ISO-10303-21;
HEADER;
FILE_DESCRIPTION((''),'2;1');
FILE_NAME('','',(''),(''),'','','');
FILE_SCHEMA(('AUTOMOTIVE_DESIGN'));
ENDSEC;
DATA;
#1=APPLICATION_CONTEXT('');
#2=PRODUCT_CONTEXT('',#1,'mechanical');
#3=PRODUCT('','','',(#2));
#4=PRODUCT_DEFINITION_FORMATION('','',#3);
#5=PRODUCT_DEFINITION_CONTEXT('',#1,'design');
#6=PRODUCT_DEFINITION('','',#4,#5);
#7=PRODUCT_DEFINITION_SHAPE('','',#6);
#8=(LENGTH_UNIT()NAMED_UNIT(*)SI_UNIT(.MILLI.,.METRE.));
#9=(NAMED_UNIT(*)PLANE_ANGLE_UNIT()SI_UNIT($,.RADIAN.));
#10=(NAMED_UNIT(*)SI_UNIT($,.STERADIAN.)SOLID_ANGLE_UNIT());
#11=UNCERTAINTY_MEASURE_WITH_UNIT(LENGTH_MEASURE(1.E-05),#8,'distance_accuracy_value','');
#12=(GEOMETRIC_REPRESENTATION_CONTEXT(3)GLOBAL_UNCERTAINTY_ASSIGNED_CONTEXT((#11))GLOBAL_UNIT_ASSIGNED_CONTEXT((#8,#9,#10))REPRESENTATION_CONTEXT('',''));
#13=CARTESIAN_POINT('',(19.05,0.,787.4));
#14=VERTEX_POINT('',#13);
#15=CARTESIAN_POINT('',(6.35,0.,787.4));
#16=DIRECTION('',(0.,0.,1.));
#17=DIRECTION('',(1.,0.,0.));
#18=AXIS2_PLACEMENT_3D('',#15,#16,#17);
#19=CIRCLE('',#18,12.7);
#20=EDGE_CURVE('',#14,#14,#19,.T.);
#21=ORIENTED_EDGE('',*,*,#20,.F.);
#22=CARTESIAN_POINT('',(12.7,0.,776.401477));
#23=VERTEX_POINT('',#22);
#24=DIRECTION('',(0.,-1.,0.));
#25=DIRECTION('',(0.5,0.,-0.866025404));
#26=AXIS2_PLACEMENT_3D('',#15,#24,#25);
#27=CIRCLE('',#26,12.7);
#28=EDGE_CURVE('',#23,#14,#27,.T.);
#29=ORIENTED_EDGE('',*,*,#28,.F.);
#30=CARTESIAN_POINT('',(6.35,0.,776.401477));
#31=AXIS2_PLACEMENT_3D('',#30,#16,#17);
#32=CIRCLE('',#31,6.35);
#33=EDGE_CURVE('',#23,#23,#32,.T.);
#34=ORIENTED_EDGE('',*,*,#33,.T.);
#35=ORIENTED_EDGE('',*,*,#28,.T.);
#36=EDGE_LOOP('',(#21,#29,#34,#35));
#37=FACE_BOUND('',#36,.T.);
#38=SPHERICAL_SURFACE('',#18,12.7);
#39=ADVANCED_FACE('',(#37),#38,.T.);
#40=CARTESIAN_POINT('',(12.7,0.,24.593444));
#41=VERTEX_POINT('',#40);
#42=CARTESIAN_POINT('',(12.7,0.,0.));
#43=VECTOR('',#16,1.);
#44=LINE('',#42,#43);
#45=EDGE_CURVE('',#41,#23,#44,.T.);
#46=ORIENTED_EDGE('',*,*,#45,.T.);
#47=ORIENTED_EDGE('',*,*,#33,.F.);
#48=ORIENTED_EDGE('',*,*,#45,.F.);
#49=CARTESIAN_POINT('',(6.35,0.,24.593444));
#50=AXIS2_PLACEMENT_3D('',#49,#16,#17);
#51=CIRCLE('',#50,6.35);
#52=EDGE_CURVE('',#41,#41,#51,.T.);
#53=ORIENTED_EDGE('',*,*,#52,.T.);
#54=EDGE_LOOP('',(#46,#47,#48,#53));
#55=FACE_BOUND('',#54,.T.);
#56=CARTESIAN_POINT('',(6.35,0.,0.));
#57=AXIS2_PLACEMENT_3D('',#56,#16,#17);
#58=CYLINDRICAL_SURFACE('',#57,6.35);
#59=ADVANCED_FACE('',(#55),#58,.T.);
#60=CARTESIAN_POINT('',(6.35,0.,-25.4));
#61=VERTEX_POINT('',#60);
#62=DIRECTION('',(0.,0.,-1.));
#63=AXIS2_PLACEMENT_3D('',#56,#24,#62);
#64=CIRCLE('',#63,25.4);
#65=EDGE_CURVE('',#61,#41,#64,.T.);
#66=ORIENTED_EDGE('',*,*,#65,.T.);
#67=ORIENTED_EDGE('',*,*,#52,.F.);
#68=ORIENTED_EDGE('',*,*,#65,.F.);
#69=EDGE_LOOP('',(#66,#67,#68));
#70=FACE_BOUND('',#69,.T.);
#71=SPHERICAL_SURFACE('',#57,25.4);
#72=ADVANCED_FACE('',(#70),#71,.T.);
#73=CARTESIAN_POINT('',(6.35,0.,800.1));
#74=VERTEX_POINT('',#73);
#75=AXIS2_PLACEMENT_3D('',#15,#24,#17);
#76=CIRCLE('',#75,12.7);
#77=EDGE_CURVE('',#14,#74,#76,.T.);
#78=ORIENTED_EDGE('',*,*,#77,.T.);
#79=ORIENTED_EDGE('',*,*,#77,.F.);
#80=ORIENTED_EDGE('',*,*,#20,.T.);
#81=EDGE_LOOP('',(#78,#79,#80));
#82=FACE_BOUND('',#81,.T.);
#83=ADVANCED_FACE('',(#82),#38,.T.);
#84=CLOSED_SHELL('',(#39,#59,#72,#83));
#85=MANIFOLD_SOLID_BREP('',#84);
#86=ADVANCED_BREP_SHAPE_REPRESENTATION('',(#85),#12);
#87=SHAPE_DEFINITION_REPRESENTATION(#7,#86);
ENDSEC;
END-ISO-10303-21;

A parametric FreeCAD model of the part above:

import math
import FreeCAD as App
import Part
import Sketcher
Q = App.Units.Quantity

doc = App.newDocument("Part")
params = doc.addObject("Spreadsheet::Sheet", "Params")
for row, (alias, value) in enumerate([
    ("sketch1_radius", "1 in"),
    ("sketch1_radius2", "0.5 in"),
    ("sketch1_height", "32.5 in"),
    ("revolution_angle", "360 deg"),
], start=1):
    params.set(f"A{row}", alias)
    params.set(f"B{row}", "=" + value)
    params.setAlias(f"B{row}", alias)

body = doc.addObject("PartDesign::Body", "Body")

sketch1 = body.newObject("Sketcher::SketchObject", "Sketch")
sketch1.AttachmentSupport = (doc.getObject("XZ_Plane"), [""])
sketch1.MapMode = "FlatFace"
sketch1.addGeometry(Part.ArcOfCircle(Part.Circle(App.Vector(6, 787, 0), App.Vector(0, 0, 1), 13), math.radians(0), math.radians(90)), False)
sketch1.addGeometry(Part.LineSegment(App.Vector(6, 800, 0), App.Vector(6, -25, 0)), False)
sketch1.addGeometry(Part.ArcOfCircle(Part.Circle(App.Vector(6, 0, 0), App.Vector(0, 0, 1), 25), math.radians(-90), math.radians(76)), False)
sketch1.addGeometry(Part.LineSegment(App.Vector(13, 25, 0), App.Vector(13, 776, 0)), False)
sketch1.addGeometry(Part.ArcOfCircle(Part.Circle(App.Vector(6, 787, 0), App.Vector(0, 0, 1), 13), math.radians(-60), math.radians(0)), False)
sketch1.addGeometry(Part.LineSegment(App.Vector(6, -25, 0), App.Vector(6, 800, 0)), True)
sketch1.addConstraint(Sketcher.Constraint("Coincident", 0, 2, 1, 1))
sketch1.addConstraint(Sketcher.Constraint("Coincident", 1, 2, 2, 1))
sketch1.addConstraint(Sketcher.Constraint("Coincident", 2, 2, 3, 1))
sketch1.addConstraint(Sketcher.Constraint("Coincident", 3, 2, 4, 1))
sketch1.addConstraint(Sketcher.Constraint("Tangent", 4, 2, 0, 1))
sketch1.addConstraint(Sketcher.Constraint("Vertical", 1))
sketch1.addConstraint(Sketcher.Constraint("Vertical", 3))
sketch1.addConstraint(Sketcher.Constraint("Vertical", 5))
sketch1.addConstraint(Sketcher.Constraint("Coincident", 5, 1, 1, 2))
sketch1.addConstraint(Sketcher.Constraint("Equal", 0, 4))
sketch1.addConstraint(Sketcher.Constraint("PointOnObject", 2, 3, -1))
sketch1.addConstraint(Sketcher.Constraint("Horizontal", 0, 3, 4, 2))
sketch1.addConstraint(Sketcher.Constraint("Vertical", 0, 3, 2, 3))
sketch1.addConstraint(Sketcher.Constraint("Vertical", 4, 3, 0, 2))
sketch1.addConstraint(Sketcher.Constraint("Equal", 1, 5))
sketch1.addConstraint(Sketcher.Constraint("Radius", 2, Q("1 in")))
sketch1.addConstraint(Sketcher.Constraint("Radius", 0, Q("0.5 in")))
sketch1.addConstraint(Sketcher.Constraint("DistanceY", 1, 2, 1, 1, Q("32.5 in")))
sketch1.addConstraint(Sketcher.Constraint("DistanceX", -1, 1, 2, 2, Q("0.5 in")))
sketch1.addConstraint(Sketcher.Constraint("DistanceX", -1, 1, 0, 3, Q("0.25 in")))
sketch1.setExpression("Constraints[15]", "Params.sketch1_radius")
sketch1.setExpression("Constraints[16]", "Params.sketch1_radius2")
sketch1.setExpression("Constraints[17]", "Params.sketch1_height")
revolution = body.newObject("PartDesign::Revolution", "Revolution")
revolution.Profile = sketch1
revolution.ReferenceAxis = (sketch1, ["Axis0"])
revolution.setExpression("Angle", "Params.revolution_angle")

doc.recompute()
